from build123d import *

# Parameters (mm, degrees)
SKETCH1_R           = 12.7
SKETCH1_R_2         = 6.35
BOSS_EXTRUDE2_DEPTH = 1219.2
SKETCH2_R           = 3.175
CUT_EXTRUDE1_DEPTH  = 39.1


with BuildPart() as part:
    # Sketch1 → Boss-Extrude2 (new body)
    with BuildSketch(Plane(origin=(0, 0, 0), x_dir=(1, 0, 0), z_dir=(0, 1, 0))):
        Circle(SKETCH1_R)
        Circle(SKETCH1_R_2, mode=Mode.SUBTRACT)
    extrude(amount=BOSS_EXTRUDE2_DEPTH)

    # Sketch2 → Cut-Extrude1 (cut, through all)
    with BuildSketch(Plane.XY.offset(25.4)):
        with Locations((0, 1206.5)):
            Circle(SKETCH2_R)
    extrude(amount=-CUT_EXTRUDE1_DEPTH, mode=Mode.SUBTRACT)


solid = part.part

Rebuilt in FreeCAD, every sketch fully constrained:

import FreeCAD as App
import Part
import Sketcher
from FreeCAD import Vector
Q = App.Units.Quantity

doc = App.newDocument("Part")
body = doc.addObject("PartDesign::Body", "Body")

# Sketch on XZ plane
sketch1 = doc.addObject("Sketcher::SketchObject", "Sketch")
body.addObject(sketch1)
sketch1.AttachmentSupport = (doc.XZ_Plane, [""])
sketch1.MapMode = "FlatFace"
sketch1.addGeometry([
    Part.Circle(Vector(0, 0, 0), Vector(0, 0, 1), 13),
    Part.Circle(Vector(0, 0, 0), Vector(0, 0, 1), 6),
], False)
sketch1.addConstraint([
    Sketcher.Constraint("Coincident", 0, 3, -1, 1),
    Sketcher.Constraint("Coincident", 1, 3, -1, 1),
    Sketcher.Constraint("Diameter", 0, Q("1 in")),
    Sketcher.Constraint("Diameter", 1, Q("0.5 in")),
])
pad1 = doc.addObject("PartDesign::Pad", "Pad")
body.addObject(pad1)
pad1.Profile = sketch1
pad1.Length = Q("48 in")
pad1.Reversed = True

# Sketch on XY plane
sketch2 = doc.addObject("Sketcher::SketchObject", "Sketch001")
body.addObject(sketch2)
sketch2.AttachmentSupport = (doc.XY_Plane, [""])
sketch2.MapMode = "FlatFace"
sketch2.AttachmentOffset = App.Placement(Vector(0, 0, 1 * 25.4), App.Rotation())
sketch2.addGeometry(Part.Circle(Vector(0, 1206.5, 0), Vector(0, 0, 1), 3.2), False)
sketch2.addConstraint([
    Sketcher.Constraint("PointOnObject", 0, 3, -2),
    Sketcher.Constraint("Diameter", 0, Q("0.25 in")),
    Sketcher.Constraint("DistanceY", -1, 1, 0, 3, Q("47.5 in")),
])
pocket1 = doc.addObject("PartDesign::Pocket", "Pocket")
body.addObject(pocket1)
pocket1.Profile = sketch2
pocket1.Type = "ThroughAll"

doc.recompute()
